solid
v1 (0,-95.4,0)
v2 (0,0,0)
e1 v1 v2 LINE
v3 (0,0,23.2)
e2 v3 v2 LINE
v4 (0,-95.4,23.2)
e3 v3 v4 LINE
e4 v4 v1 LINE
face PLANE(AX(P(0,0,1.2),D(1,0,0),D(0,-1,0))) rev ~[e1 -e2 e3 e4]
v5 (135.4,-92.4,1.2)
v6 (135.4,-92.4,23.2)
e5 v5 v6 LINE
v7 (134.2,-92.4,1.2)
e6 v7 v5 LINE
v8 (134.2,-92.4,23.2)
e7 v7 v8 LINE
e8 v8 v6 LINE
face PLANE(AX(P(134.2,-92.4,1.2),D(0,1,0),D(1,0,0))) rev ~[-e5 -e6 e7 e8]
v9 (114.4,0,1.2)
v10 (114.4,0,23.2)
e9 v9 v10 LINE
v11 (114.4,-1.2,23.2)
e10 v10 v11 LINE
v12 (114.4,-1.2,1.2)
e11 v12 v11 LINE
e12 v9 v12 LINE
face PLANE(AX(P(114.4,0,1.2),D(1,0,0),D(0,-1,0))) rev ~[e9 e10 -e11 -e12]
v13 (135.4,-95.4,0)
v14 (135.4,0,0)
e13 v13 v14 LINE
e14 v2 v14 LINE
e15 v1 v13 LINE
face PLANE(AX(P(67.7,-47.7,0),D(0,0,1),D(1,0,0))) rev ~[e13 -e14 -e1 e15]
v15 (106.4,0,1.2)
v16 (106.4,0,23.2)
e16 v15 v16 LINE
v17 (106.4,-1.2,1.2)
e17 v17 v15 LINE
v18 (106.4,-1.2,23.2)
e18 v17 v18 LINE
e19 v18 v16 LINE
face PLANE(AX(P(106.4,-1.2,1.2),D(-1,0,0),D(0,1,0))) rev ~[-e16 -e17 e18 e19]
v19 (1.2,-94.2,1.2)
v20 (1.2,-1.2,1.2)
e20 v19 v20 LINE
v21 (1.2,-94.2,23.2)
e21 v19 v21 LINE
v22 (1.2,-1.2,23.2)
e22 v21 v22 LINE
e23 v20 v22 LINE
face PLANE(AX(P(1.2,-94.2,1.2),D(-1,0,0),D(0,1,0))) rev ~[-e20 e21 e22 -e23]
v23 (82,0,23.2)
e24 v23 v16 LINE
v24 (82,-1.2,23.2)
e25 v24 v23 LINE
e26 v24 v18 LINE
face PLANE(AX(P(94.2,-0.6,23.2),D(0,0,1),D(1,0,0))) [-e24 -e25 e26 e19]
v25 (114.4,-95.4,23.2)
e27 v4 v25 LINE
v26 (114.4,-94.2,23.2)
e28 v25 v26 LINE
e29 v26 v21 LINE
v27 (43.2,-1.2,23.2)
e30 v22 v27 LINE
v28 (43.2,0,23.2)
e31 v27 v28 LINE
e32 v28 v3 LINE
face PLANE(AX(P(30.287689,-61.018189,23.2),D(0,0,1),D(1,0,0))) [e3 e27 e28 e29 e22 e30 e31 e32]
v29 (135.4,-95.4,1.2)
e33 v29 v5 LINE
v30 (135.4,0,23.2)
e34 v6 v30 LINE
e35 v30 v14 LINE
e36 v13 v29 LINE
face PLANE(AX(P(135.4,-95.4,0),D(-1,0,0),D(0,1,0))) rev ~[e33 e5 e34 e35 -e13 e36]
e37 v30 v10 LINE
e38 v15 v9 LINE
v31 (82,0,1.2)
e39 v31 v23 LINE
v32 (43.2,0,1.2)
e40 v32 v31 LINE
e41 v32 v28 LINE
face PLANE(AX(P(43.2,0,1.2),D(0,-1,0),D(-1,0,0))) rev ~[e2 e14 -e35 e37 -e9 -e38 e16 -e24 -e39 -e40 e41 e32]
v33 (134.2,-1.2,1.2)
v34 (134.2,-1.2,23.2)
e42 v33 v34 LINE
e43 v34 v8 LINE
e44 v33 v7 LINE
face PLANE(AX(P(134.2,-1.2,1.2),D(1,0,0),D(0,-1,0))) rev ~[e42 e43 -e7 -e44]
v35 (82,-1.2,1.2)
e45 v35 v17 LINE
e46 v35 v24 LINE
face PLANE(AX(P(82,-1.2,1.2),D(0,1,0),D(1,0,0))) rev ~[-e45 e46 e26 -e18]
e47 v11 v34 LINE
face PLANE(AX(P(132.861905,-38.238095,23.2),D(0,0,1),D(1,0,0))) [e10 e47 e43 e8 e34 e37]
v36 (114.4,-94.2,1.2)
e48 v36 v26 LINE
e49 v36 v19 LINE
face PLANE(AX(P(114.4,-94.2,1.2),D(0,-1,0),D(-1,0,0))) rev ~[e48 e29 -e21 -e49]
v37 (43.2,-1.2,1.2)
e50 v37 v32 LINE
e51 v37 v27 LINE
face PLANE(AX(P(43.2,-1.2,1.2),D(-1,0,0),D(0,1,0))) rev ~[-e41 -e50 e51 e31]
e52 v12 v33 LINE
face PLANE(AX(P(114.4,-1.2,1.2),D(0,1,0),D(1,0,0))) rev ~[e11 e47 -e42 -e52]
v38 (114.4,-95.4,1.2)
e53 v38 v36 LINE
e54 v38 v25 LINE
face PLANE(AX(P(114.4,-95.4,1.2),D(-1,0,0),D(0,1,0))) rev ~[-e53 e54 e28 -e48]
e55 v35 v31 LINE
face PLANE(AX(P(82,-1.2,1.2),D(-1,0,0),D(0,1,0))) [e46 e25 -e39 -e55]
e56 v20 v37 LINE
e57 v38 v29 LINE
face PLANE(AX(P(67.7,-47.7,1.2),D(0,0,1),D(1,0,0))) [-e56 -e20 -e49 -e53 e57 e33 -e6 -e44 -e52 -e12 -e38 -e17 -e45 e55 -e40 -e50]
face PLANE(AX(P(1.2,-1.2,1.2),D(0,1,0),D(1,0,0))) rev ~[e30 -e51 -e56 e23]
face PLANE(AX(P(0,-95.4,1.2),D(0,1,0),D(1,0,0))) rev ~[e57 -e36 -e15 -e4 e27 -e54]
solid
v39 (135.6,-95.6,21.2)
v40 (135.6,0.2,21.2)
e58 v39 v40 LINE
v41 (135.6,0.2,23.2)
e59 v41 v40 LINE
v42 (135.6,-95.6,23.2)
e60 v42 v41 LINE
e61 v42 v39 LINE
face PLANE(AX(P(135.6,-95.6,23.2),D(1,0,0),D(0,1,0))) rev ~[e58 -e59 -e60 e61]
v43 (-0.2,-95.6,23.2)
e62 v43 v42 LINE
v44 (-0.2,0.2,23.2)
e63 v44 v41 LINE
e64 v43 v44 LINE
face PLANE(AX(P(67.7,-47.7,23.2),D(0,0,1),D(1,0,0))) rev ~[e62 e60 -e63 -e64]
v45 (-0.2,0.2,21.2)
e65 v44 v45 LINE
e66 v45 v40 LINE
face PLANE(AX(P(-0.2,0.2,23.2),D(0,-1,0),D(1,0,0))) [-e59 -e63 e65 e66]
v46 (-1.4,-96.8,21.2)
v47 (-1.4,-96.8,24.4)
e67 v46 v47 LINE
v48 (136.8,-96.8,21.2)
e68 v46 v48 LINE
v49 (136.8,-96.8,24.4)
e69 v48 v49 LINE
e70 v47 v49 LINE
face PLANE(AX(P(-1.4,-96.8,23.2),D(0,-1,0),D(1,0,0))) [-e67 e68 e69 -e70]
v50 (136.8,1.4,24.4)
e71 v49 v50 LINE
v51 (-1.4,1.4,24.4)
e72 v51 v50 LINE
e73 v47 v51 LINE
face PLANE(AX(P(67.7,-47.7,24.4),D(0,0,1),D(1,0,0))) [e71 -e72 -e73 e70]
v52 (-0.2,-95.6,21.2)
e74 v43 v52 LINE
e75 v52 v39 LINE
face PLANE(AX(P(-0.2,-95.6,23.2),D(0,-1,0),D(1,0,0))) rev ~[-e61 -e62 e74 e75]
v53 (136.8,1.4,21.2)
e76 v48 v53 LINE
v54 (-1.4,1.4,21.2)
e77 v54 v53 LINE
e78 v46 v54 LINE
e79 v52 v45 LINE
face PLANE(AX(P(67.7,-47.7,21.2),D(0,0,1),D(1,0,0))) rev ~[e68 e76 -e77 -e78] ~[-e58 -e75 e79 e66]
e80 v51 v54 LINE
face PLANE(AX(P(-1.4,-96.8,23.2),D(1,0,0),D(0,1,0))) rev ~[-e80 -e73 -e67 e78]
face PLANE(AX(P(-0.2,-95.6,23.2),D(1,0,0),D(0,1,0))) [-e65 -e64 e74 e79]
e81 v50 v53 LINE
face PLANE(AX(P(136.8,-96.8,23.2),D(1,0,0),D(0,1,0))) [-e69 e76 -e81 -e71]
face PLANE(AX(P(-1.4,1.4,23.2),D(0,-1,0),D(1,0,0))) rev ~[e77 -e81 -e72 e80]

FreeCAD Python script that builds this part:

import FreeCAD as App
import Part
import Sketcher
Q = App.Units.Quantity


def add_polygon(sketch, points):
    """Adds a closed chain of lines whose ends are joined by coincident constraints."""
    first, n = sketch.GeometryCount, len(points)
    for a, b in zip(points, points[1:] + points[:1]):
        sketch.addGeometry(Part.LineSegment(App.Vector(*a, 0), App.Vector(*b, 0)), False)
    for i in range(n):
        sketch.addConstraint(Sketcher.Constraint("Coincident", first + i, 2, first + (i + 1) % n, 1))

doc = App.newDocument("Part")
body = doc.addObject("PartDesign::Body", "Body")

# Sketch on XY plane
sketch1 = doc.addObject("Sketcher::SketchObject", "Sketch")
body.addObject(sketch1)
sketch1.AttachmentSupport = (doc.XY_Plane, [""])
sketch1.MapMode = "FlatFace"
add_polygon(sketch1, [(0, 0), (0, -95), (135, -95), (135, 0)])  # lines 0-3
sketch1.addConstraint([
    Sketcher.Constraint("Vertical", 0),
    Sketcher.Constraint("Horizontal", 1),
    Sketcher.Constraint("Vertical", 2),
    Sketcher.Constraint("Horizontal", 3),
    Sketcher.Constraint("Coincident", 3, 2, -1, 1),
    Sketcher.Constraint("DistanceX", 1, 1, 1, 2, Q("135.4 mm")),
    Sketcher.Constraint("DistanceY", 0, 2, 0, 1, Q("95.4 mm")),
])
pad1 = doc.addObject("PartDesign::Pad", "Pad")
body.addObject(pad1)
pad1.Profile = sketch1
pad1.Length = 1.2

# Sketch on XY plane
sketch2 = doc.addObject("Sketcher::SketchObject", "Sketch001")
body.addObject(sketch2)
sketch2.AttachmentSupport = (doc.XY_Plane, [""])
sketch2.MapMode = "FlatFace"
sketch2.AttachmentOffset = App.Placement(App.Vector(0, 0, 1.2), App.Rotation())
add_polygon(sketch2, [(0, -95.4), (114.4, -95.4), (114.4, -94.2), (1.2, -94.2), (1.2, -1.2), (43.2, -1.2), (43.2, 0), (0, 0)])  # lines 0-7
add_polygon(sketch2, [(82, 0), (82, -1.2), (106.4, -1.2), (106.4, 0)])  # lines 8-11
add_polygon(sketch2, [(135.4, 0), (114.4, 0), (114.4, -1.2), (134.2, -1.2), (134.2, -92.4), (135.4, -92.4)])  # lines 12-17
sketch2.addConstraint([
    Sketcher.Constraint("Horizontal", 0),
    Sketcher.Constraint("Vertical", 1),
    Sketcher.Constraint("Horizontal", 2),
    Sketcher.Constraint("Vertical", 3),
    Sketcher.Constraint("Horizontal", 4),
    Sketcher.Constraint("Vertical", 5),
    Sketcher.Constraint("Horizontal", 6),
    Sketcher.Constraint("Vertical", 7),
    Sketcher.Constraint("Vertical", 8),
    Sketcher.Constraint("Horizontal", 9),
    Sketcher.Constraint("Vertical", 10),
    Sketcher.Constraint("Horizontal", 11),
    Sketcher.Constraint("Horizontal", 12),
    Sketcher.Constraint("Vertical", 13),
    Sketcher.Constraint("Horizontal", 14),
    Sketcher.Constraint("Vertical", 15),
    Sketcher.Constraint("Horizontal", 16),
    Sketcher.Constraint("Vertical", 17),
    Sketcher.Constraint("Coincident", 6, 2, -1, 1),
    Sketcher.Constraint("PointOnObject", 10, 2, -1),
    Sketcher.Constraint("PointOnObject", 12, 2, -1),
    Sketcher.Constraint("Horizontal", 4, 2, 8, 2),
    Sketcher.Constraint("Horizontal", 9, 2, 13, 2),
    Sketcher.Constraint("Vertical", 1, 2, 12, 2),
    Sketcher.Constraint("Equal", 16, 1),
    Sketcher.Constraint("Equal", 1, 5),
    Sketcher.Constraint("DistanceX", 4, 1, 4, 2, Q("42 mm")),
    Sketcher.Constraint("DistanceX", 12, 2, 12, 1, Q("21 mm")),
    Sketcher.Constraint("DistanceY", 3, 1, 3, 2, Q("93 mm")),
    Sketcher.Constraint("DistanceX", 0, 1, 0, 2, Q("114.4 mm")),
    Sketcher.Constraint("DistanceX", 2, 2, 2, 1, Q("113.2 mm")),
    Sketcher.Constraint("DistanceX", 9, 1, 9, 2, Q("24.4 mm")),
    Sketcher.Constraint("DistanceX", 14, 1, 14, 2, Q("19.8 mm")),
    Sketcher.Constraint("DistanceY", 15, 2, 15, 1, Q("91.2 mm")),
    Sketcher.Constraint("DistanceX", -1, 1, 8, 2, Q("82 mm")),
])
pad2 = doc.addObject("PartDesign::Pad", "Pad001")
body.addObject(pad2)
pad2.Profile = sketch2
pad2.Length = 22
body2 = doc.addObject("PartDesign::Body", "Body001")

# Sketch on XY plane
sketch3 = doc.addObject("Sketcher::SketchObject", "Sketch002")
body2.addObject(sketch3)
sketch3.AttachmentSupport = (doc.getObject("XY_Plane001"), [""])
sketch3.MapMode = "FlatFace"
sketch3.AttachmentOffset = App.Placement(App.Vector(0, 0, 23.2), App.Rotation())
add_polygon(sketch3, [(-1, 1), (-1, -97), (137, -97), (137, 1)])  # lines 0-3
sketch3.addConstraint([
    Sketcher.Constraint("Vertical", 0),
    Sketcher.Constraint("Horizontal", 1),
    Sketcher.Constraint("Vertical", 2),
    Sketcher.Constraint("Horizontal", 3),
    Sketcher.Constraint("DistanceX", 1, 1, 1, 2, Q("138.2 mm")),
    Sketcher.Constraint("DistanceY", 0, 2, 0, 1, Q("98.2 mm")),
    Sketcher.Constraint("DistanceX", 0, 2, -1, 1, Q("1.4 mm")),
    Sketcher.Constraint("DistanceY", 0, 2, -1, 1, Q("96.8 mm")),
])
pad3 = doc.addObject("PartDesign::Pad", "Pad002")
body2.addObject(pad3)
pad3.Profile = sketch3
pad3.Length = 1.2

# Sketch on XY plane
sketch4 = doc.addObject("Sketcher::SketchObject", "Sketch003")
body2.addObject(sketch4)
sketch4.AttachmentSupport = (doc.getObject("XY_Plane001"), [""])
sketch4.MapMode = "FlatFace"
sketch4.AttachmentOffset = App.Placement(App.Vector(0, 0, 23.2), App.Rotation())
add_polygon(sketch4, [(-1, 1), (-1, -97), (137, -97), (137, 1)])  # lines 0-3
add_polygon(sketch4, [(136, -96), (0, -96), (0, 0), (136, 0)])  # lines 4-7
sketch4.addConstraint([
    Sketcher.Constraint("Vertical", 0),
    Sketcher.Constraint("Horizontal", 1),
    Sketcher.Constraint("Vertical", 2),
    Sketcher.Constraint("Horizontal", 3),
    Sketcher.Constraint("Horizontal", 4),
    Sketcher.Constraint("Vertical", 5),
    Sketcher.Constraint("Horizontal", 6),
    Sketcher.Constraint("Vertical", 7),
    Sketcher.Constraint("DistanceX", 1, 1, 1, 2, Q("138.2 mm")),
    Sketcher.Constraint("DistanceX", 4, 2, 4, 1, Q("135.8 mm")),
    Sketcher.Constraint("DistanceY", 0, 2, 0, 1, Q("98.2 mm")),
    Sketcher.Constraint("DistanceY", 5, 1, 5, 2, Q("95.8 mm")),
    Sketcher.Constraint("DistanceY", 4, 2, 3, 2, Q("97 mm")),
    Sketcher.Constraint("DistanceX", 4, 2, 1, 2, Q("137 mm")),
    Sketcher.Constraint("DistanceX", 0, 2, -1, 1, Q("1.4 mm")),
    Sketcher.Constraint("DistanceY", 0, 2, -1, 1, Q("96.8 mm")),
])
pad4 = doc.addObject("PartDesign::Pad", "Pad003")
body2.addObject(pad4)
pad4.Profile = sketch4
pad4.Length = 2
pad4.Reversed = True

doc.recompute()
